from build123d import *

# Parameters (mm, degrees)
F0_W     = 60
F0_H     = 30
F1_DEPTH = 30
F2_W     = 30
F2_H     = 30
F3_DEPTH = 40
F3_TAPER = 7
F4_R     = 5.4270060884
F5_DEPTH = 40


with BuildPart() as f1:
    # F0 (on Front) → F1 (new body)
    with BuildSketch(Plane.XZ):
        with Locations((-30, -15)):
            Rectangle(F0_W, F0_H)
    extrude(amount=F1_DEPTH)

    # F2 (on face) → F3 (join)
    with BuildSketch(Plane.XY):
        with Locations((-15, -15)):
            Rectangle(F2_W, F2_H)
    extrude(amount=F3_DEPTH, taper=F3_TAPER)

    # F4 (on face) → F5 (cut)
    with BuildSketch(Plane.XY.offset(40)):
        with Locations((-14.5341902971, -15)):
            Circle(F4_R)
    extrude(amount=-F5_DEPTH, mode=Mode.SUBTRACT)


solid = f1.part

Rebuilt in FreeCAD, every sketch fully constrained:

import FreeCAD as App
import Part
import Sketcher
from FreeCAD import Vector
Q = App.Units.Quantity


def add_polygon(sketch, points):
    """Adds a closed chain of lines whose ends are joined by coincident constraints."""
    first, n = sketch.GeometryCount, len(points)
    for a, b in zip(points, points[1:] + points[:1]):
        sketch.addGeometry(Part.LineSegment(App.Vector(*a, 0), App.Vector(*b, 0)), False)
    for i in range(n):
        sketch.addConstraint(Sketcher.Constraint("Coincident", first + i, 2, first + (i + 1) % n, 1))

doc = App.newDocument("Part")
params = doc.addObject("Spreadsheet::Sheet", "Params")
for row, (alias, value) in enumerate([
    ("sketch1_width", "60 mm"),
    ("sketch1_height", "30 mm"),
    ("pad1_length", "30 mm"),
    ("sketch2_width", "30 mm"),
    ("pad2_length", "40 mm"),
    ("pad2_taper", "-7 deg"),
    ("pocket1_length", "40 mm"),
], start=1):
    params.set(f"A{row}", alias)
    params.set(f"B{row}", "=" + value)
    params.setAlias(f"B{row}", alias)

body = doc.addObject("PartDesign::Body", "Body")

# Sketch on XZ plane
sketch1 = doc.addObject("Sketcher::SketchObject", "Sketch")
body.addObject(sketch1)
sketch1.AttachmentSupport = (doc.XZ_Plane, [""])
sketch1.MapMode = "FlatFace"
add_polygon(sketch1, [(-60, 0), (-60, -30), (0, -30), (0, 0)])  # lines 0-3
sketch1.addConstraint([
    Sketcher.Constraint("Vertical", 0),
    Sketcher.Constraint("Horizontal", 1),
    Sketcher.Constraint("Vertical", 2),
    Sketcher.Constraint("Horizontal", 3),
    Sketcher.Constraint("Coincident", 2, 2, -1, 1),
    Sketcher.Constraint("DistanceX", 1, 1, 1, 2, Q("60 mm")),
    Sketcher.Constraint("DistanceY", 0, 2, 0, 1, Q("30 mm")),
])
sketch1.setExpression("Constraints[9]", "Params.sketch1_width")
sketch1.setExpression("Constraints[10]", "Params.sketch1_height")
pad1 = doc.addObject("PartDesign::Pad", "Pad")
body.addObject(pad1)
pad1.Profile = sketch1
pad1.setExpression("Length", "Params.pad1_length")

# Sketch on XY plane
sketch2 = doc.addObject("Sketcher::SketchObject", "Sketch001")
body.addObject(sketch2)
sketch2.AttachmentSupport = (doc.XY_Plane, [""])
sketch2.MapMode = "FlatFace"
add_polygon(sketch2, [(-30, 0), (-30, -30), (0, -30), (0, 0)])  # lines 0-3
sketch2.addConstraint([
    Sketcher.Constraint("Vertical", 0),
    Sketcher.Constraint("Horizontal", 1),
    Sketcher.Constraint("Vertical", 2),
    Sketcher.Constraint("Horizontal", 3),
    Sketcher.Constraint("Coincident", 2, 2, -1, 1),
    Sketcher.Constraint("Equal", 3, 0),
    Sketcher.Constraint("DistanceX", 1, 1, 1, 2, Q("30 mm")),
])
sketch2.setExpression("Constraints[10]", "Params.sketch2_width")
pad2 = doc.addObject("PartDesign::Pad", "Pad001")
body.addObject(pad2)
pad2.Profile = sketch2
pad2.setExpression("Length", "Params.pad2_length")
pad2.setExpression("TaperAngle", "Params.pad2_taper")

# Sketch on XY plane
sketch3 = doc.addObject("Sketcher::SketchObject", "Sketch002")
body.addObject(sketch3)
sketch3.AttachmentSupport = (doc.XY_Plane, [""])
sketch3.MapMode = "FlatFace"
sketch3.AttachmentOffset = App.Placement(Vector(0, 0, 40), App.Rotation())
sketch3.addGeometry(Part.Circle(Vector(-15, -15, 0), Vector(0, 0, 1), 5), False)
sketch3.addConstraint([
    Sketcher.Constraint("DistanceY", 0, 3, -1, 1, Q("15 mm")),
    Sketcher.Constraint("Diameter", 0, Q("10.854012 mm")),
    Sketcher.Constraint("DistanceX", 0, 3, -1, 1, Q("14.53419 mm")),
])
pocket1 = doc.addObject("PartDesign::Pocket", "Pocket")
body.addObject(pocket1)
pocket1.Profile = sketch3
pocket1.setExpression("Length", "Params.pocket1_length")

doc.recompute()
